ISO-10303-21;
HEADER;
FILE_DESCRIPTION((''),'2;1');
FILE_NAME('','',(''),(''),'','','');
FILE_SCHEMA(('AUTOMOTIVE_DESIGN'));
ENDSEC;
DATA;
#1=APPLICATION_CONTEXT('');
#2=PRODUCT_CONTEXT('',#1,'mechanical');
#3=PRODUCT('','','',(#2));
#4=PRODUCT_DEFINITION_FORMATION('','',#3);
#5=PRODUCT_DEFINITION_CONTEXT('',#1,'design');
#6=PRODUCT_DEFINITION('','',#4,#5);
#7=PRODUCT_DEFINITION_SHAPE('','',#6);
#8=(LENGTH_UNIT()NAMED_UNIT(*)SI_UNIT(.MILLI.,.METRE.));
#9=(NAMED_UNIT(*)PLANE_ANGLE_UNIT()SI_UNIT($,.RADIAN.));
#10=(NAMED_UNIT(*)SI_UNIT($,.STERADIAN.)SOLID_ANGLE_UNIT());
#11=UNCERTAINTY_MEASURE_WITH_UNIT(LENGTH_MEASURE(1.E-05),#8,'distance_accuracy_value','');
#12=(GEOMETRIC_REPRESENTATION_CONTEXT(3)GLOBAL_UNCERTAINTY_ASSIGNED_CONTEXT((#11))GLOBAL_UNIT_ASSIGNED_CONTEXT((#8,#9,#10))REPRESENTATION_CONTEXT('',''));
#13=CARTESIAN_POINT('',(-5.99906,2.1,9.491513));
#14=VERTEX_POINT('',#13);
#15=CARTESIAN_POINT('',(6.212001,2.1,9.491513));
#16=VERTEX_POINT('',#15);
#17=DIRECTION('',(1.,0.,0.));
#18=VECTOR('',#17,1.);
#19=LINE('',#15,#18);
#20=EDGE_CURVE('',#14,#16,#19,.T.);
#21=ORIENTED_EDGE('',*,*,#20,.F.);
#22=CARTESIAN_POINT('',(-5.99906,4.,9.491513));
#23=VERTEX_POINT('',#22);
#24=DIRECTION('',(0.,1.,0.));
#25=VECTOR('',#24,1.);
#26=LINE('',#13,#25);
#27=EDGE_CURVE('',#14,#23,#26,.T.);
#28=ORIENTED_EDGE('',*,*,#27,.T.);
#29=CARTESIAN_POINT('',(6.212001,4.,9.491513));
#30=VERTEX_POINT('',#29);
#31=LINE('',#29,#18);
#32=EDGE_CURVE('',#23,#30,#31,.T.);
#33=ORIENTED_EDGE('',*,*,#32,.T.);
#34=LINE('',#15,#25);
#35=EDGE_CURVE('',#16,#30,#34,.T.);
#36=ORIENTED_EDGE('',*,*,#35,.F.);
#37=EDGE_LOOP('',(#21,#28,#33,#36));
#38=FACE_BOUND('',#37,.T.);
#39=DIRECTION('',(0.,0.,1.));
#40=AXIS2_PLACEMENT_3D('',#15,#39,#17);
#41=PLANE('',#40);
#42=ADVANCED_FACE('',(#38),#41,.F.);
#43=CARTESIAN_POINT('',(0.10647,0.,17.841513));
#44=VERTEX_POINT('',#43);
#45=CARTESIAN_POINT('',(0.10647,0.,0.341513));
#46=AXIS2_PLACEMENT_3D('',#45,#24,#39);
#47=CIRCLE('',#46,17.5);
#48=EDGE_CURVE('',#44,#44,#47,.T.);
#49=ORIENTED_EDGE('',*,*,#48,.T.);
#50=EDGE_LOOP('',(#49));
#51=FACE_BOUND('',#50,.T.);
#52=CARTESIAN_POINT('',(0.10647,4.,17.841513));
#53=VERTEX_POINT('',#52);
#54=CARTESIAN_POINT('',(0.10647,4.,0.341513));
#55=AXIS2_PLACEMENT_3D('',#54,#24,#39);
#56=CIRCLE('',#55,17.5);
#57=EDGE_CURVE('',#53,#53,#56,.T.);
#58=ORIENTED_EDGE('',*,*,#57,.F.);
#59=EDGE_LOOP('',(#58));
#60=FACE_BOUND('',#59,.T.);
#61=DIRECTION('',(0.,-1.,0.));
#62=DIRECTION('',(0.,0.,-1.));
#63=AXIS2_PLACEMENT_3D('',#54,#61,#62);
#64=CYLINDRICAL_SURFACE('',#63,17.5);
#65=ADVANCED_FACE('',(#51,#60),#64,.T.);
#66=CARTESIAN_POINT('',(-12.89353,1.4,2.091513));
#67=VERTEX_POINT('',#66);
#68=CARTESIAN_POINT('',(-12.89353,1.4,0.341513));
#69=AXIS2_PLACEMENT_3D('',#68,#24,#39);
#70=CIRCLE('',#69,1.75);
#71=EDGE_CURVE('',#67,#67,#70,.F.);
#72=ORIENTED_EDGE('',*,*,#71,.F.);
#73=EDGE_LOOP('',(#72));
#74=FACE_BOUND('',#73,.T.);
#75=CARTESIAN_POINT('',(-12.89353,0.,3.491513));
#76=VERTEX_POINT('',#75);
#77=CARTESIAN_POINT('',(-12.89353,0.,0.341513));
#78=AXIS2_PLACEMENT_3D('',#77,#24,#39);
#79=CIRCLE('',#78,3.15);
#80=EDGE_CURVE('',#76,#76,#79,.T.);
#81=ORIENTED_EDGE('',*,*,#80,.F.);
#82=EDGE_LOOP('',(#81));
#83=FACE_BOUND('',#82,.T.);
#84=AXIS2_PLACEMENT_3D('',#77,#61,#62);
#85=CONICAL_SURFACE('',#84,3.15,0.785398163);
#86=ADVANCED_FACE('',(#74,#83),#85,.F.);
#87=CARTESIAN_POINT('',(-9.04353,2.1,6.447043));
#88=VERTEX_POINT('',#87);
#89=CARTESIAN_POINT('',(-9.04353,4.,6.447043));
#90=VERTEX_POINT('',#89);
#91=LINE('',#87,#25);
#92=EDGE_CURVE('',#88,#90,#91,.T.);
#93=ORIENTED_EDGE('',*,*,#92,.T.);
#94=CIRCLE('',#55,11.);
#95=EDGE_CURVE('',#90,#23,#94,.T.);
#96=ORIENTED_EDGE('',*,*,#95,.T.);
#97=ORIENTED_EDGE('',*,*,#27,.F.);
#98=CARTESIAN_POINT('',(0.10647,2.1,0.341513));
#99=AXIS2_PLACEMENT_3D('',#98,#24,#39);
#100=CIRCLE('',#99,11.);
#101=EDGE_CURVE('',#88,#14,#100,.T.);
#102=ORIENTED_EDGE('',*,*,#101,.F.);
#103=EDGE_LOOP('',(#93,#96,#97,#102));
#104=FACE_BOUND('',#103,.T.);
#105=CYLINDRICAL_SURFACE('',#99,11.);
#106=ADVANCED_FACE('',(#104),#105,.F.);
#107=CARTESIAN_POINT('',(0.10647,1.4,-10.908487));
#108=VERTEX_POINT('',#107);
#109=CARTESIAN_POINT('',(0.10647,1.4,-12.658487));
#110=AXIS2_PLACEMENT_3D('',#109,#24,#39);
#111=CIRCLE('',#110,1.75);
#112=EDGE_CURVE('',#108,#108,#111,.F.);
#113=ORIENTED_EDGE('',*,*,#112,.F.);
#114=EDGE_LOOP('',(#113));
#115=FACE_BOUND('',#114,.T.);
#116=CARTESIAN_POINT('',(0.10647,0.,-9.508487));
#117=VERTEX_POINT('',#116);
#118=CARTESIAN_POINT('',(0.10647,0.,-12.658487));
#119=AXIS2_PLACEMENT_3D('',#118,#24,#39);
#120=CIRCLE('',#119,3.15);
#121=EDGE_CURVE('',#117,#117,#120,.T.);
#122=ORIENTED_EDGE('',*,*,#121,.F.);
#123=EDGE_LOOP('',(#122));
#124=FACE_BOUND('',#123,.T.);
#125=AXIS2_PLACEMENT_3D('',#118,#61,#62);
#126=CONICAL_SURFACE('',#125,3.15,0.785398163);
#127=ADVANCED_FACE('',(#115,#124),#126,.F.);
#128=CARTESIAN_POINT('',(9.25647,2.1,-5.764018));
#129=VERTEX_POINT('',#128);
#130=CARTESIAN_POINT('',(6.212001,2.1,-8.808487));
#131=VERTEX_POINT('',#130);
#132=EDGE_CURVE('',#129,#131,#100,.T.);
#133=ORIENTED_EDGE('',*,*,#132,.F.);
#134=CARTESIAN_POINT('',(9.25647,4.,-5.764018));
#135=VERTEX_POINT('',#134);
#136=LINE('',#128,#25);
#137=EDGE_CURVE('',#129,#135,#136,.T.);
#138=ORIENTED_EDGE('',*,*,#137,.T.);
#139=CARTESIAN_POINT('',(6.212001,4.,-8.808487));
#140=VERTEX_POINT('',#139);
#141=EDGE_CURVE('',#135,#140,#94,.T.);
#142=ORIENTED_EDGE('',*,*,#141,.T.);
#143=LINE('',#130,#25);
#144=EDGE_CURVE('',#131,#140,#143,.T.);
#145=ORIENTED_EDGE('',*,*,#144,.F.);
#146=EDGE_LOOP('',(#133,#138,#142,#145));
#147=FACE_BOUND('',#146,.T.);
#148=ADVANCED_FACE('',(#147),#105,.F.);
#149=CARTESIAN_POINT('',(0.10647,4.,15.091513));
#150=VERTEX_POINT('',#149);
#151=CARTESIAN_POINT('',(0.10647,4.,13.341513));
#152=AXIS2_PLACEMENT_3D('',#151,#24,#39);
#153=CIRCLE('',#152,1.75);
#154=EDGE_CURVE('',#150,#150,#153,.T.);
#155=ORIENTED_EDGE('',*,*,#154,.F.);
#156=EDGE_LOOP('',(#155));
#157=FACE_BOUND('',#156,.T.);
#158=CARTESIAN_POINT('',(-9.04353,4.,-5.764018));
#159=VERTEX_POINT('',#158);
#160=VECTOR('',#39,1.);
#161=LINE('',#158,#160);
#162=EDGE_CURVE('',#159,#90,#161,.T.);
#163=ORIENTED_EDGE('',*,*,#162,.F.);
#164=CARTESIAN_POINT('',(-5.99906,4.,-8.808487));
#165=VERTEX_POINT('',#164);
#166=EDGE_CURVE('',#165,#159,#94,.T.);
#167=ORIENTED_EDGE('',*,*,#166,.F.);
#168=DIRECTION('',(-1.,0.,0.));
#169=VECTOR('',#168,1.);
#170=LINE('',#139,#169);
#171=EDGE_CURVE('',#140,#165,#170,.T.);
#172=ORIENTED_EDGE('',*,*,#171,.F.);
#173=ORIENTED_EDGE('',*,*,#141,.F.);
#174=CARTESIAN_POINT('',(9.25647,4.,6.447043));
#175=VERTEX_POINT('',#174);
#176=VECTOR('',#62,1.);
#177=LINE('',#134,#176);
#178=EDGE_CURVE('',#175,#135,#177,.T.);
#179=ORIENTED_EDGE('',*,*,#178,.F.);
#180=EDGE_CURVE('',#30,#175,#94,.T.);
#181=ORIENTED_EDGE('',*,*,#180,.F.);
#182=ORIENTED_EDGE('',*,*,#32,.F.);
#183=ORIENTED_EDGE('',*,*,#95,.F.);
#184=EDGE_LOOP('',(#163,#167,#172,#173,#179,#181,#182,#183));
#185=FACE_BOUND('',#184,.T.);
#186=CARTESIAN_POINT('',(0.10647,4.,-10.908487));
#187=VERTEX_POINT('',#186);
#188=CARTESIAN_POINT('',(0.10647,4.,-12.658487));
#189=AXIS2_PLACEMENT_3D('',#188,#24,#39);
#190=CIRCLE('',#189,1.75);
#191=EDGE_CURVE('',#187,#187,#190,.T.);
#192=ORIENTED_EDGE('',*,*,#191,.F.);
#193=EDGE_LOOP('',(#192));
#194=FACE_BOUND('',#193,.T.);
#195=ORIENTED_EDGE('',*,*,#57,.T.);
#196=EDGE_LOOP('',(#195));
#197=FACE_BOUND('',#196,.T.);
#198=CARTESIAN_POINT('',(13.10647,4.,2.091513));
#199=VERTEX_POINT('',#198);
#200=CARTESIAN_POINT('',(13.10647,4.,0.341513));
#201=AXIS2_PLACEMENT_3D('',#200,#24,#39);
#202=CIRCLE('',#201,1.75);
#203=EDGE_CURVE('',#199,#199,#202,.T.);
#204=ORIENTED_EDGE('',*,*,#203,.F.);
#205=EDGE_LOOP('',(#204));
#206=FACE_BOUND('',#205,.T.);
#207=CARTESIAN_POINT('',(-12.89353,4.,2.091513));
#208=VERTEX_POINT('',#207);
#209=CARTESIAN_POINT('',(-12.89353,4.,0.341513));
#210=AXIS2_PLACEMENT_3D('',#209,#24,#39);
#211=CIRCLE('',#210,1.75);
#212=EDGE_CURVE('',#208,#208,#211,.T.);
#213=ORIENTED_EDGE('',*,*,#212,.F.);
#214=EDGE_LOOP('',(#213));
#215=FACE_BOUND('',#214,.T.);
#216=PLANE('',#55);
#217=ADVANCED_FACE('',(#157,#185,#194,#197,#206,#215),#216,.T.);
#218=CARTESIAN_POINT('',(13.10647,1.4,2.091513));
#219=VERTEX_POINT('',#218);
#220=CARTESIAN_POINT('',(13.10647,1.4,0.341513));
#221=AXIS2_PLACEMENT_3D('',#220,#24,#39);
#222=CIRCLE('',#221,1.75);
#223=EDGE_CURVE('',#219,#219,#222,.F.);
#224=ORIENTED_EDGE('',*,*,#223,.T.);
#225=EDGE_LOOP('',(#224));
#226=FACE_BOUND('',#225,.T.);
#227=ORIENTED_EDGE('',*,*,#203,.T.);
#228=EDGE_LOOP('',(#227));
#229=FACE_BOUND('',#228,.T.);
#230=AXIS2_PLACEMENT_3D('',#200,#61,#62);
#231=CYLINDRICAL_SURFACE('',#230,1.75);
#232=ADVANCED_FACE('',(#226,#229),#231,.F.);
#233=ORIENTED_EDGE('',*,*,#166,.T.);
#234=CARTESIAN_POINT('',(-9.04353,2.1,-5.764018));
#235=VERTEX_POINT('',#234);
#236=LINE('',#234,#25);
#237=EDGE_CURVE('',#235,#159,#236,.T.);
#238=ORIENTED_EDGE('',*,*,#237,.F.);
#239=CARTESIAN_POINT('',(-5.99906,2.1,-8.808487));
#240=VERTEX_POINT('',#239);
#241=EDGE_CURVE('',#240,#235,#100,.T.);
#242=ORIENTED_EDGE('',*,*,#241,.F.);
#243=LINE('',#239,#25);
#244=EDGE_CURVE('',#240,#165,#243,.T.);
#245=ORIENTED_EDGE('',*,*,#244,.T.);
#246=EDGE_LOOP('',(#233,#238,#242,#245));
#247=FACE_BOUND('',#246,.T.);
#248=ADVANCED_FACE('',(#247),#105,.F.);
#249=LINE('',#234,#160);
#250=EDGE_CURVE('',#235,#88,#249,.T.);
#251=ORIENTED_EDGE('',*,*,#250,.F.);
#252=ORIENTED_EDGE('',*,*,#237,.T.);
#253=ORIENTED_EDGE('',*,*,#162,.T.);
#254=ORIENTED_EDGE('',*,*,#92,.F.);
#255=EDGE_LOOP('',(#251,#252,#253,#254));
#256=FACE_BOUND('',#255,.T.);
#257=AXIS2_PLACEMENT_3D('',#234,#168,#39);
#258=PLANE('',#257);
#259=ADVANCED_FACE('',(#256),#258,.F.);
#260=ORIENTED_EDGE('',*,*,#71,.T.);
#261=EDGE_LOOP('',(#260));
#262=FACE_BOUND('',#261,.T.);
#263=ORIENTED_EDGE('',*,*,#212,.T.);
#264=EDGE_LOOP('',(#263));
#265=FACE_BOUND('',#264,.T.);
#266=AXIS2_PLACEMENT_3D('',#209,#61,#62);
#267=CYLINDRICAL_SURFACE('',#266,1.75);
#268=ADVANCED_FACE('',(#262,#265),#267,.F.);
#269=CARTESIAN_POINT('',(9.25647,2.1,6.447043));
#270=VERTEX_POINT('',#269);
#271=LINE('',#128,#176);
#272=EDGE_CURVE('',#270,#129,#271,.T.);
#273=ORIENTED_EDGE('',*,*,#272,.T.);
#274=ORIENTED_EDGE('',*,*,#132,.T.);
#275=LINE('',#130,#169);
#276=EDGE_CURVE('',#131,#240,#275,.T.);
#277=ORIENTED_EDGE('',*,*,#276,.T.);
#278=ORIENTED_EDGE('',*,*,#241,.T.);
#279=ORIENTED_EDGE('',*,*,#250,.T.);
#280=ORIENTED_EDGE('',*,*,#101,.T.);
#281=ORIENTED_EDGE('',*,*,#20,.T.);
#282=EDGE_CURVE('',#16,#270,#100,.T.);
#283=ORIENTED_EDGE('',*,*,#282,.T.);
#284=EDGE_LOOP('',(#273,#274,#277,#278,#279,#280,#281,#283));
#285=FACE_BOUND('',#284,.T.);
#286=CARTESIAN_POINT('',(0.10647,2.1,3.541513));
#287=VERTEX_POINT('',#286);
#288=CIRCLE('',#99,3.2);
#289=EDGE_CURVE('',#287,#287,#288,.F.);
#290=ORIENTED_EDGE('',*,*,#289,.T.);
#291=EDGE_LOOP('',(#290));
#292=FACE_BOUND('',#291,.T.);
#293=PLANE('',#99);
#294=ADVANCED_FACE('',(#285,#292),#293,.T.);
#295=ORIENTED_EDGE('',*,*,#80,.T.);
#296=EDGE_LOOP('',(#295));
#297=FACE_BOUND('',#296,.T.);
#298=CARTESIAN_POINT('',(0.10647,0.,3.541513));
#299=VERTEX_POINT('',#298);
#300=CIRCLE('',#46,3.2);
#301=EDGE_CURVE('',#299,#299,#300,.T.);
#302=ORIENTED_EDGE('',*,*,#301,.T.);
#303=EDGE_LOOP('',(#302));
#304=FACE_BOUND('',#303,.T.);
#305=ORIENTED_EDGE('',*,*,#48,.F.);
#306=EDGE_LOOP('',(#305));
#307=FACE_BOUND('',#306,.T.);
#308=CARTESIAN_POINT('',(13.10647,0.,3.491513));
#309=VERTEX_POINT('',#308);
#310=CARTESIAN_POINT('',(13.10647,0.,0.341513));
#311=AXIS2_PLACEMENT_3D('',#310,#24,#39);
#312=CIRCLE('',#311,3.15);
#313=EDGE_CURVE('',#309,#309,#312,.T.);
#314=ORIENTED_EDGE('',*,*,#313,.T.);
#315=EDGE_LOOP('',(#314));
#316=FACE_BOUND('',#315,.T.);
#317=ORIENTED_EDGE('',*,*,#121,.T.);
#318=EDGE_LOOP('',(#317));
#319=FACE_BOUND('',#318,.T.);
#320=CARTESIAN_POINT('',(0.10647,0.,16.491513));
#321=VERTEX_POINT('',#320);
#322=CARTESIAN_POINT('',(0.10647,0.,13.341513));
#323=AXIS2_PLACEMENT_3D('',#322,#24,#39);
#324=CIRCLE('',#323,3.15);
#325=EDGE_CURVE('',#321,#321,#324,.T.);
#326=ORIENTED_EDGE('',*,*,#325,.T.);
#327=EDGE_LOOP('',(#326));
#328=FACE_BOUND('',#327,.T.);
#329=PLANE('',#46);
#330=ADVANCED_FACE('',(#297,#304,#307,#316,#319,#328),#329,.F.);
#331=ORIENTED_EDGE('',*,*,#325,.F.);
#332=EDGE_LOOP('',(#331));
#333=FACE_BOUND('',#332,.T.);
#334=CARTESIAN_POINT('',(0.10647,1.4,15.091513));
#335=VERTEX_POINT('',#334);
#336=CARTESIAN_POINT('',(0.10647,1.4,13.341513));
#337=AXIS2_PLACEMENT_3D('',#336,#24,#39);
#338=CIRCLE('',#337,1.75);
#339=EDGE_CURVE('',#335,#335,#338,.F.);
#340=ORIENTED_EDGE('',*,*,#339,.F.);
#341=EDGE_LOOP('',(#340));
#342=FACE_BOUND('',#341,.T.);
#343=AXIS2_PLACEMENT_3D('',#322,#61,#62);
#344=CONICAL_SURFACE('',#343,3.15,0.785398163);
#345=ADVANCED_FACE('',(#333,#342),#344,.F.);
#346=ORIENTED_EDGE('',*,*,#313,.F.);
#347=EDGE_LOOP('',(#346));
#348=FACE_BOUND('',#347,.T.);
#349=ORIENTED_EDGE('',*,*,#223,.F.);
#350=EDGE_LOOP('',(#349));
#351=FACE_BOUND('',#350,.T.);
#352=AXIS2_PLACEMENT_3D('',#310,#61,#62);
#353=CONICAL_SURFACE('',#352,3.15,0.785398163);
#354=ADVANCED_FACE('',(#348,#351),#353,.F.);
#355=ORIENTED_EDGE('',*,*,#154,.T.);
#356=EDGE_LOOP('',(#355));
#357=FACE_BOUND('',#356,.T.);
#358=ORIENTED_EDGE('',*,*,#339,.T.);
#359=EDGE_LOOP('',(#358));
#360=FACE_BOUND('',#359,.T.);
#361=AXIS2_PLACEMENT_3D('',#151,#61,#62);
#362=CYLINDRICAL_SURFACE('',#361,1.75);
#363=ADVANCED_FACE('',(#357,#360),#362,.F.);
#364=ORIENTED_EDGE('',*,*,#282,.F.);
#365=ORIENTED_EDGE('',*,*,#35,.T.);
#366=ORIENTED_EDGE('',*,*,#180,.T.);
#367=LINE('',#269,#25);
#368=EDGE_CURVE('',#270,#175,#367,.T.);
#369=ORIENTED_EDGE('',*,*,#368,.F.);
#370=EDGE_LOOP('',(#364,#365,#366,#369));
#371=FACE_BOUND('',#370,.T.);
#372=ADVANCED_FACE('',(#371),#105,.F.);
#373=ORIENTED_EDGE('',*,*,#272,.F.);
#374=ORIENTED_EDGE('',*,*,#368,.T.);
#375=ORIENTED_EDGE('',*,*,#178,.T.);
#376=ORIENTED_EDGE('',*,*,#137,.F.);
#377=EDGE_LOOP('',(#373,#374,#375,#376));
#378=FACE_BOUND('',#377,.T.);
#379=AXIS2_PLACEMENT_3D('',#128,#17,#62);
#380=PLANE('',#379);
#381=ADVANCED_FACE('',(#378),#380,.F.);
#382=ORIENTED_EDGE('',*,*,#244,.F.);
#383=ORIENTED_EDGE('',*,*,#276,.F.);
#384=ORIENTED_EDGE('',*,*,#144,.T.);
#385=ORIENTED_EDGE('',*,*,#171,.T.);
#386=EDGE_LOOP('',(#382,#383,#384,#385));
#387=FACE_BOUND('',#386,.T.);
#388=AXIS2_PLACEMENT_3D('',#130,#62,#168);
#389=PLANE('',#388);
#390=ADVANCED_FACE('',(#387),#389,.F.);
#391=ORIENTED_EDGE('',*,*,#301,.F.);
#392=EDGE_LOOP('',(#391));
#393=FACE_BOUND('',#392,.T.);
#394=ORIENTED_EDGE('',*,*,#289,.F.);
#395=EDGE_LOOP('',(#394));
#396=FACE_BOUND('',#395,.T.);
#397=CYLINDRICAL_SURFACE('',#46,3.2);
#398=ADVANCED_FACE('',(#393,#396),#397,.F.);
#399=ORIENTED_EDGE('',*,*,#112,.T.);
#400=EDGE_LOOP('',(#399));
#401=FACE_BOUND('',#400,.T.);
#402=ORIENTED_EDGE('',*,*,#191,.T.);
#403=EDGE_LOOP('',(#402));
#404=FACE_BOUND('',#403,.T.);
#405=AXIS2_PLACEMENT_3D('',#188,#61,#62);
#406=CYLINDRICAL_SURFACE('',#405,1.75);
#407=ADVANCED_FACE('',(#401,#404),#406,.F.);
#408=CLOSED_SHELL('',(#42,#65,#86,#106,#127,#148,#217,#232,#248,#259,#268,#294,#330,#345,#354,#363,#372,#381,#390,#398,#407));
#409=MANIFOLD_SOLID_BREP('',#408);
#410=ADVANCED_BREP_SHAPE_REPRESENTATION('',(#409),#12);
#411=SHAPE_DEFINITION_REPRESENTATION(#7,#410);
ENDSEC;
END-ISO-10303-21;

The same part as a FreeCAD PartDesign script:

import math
import FreeCAD as App
import Part
import Sketcher
Q = App.Units.Quantity


def edges_at(feature, points):
    """Names of the edges that pass closest to the given points."""
    edges = feature.Shape.Edges
    near = lambda p: min(range(len(edges)), key=lambda i: edges[i].distToShape(Part.Vertex(*p))[0])
    return sorted({f"Edge{near(p) + 1}" for p in points})

doc = App.newDocument("Part")
body = doc.addObject("PartDesign::Body", "Body")

# Sketch on XZ plane
sketch1 = doc.addObject("Sketcher::SketchObject", "Sketch")
body.addObject(sketch1)
sketch1.AttachmentSupport = (doc.XZ_Plane, [""])
sketch1.MapMode = "FlatFace"
sketch1.addGeometry(Part.Circle(App.Vector(0.10647, 0.341513, 0), App.Vector(0, 0, 1), 17.5), False)
sketch1.addGeometry(Part.Circle(App.Vector(0.10647, 13.341513, 0), App.Vector(0, 0, 1), 1.75), False)
sketch1.addGeometry(Part.Circle(App.Vector(-12.89353, 0.341513, 0), App.Vector(0, 0, 1), 1.75), False)
sketch1.addGeometry(Part.Circle(App.Vector(13.10647, 0.341513, 0), App.Vector(0, 0, 1), 1.75), False)
sketch1.addGeometry(Part.Circle(App.Vector(0.10647, -12.658487, 0), App.Vector(0, 0, 1), 1.75), False)
sketch1.addConstraint(Sketcher.Constraint("Equal", 1, 2))
sketch1.addConstraint(Sketcher.Constraint("Equal", 2, 3))
sketch1.addConstraint(Sketcher.Constraint("Equal", 3, 4))
sketch1.addConstraint(Sketcher.Constraint("Horizontal", 0, 3, 2, 3))
sketch1.addConstraint(Sketcher.Constraint("Horizontal", 2, 3, 3, 3))
sketch1.addConstraint(Sketcher.Constraint("Vertical", 0, 3, 1, 3))
sketch1.addConstraint(Sketcher.Constraint("Vertical", 1, 3, 4, 3))
sketch1.addConstraint(Sketcher.Constraint("Diameter", 0, Q("35 mm")))
sketch1.addConstraint(Sketcher.Constraint("Diameter", 1, Q("3.5 mm")))
sketch1.addConstraint(Sketcher.Constraint("DistanceY", 0, 3, 1, 3, Q("13 mm")))
sketch1.addConstraint(Sketcher.Constraint("DistanceX", 2, 3, 0, 3, Q("13 mm")))
sketch1.addConstraint(Sketcher.Constraint("DistanceX", 0, 3, 3, 3, Q("13 mm")))
sketch1.addConstraint(Sketcher.Constraint("DistanceY", 4, 3, 0, 3, Q("13 mm")))
sketch1.addConstraint(Sketcher.Constraint("DistanceX", -1, 1, 0, 3, Q("0.10647 mm")))
sketch1.addConstraint(Sketcher.Constraint("DistanceY", -1, 1, 0, 3, Q("0.341513 mm")))
pad1 = doc.addObject("PartDesign::Pad", "Pad")
body.addObject(pad1)
pad1.Profile = sketch1
pad1.Length = 4
pad1.Reversed = True

# Sketch on XZ plane
sketch2 = doc.addObject("Sketcher::SketchObject", "Sketch001")
body.addObject(sketch2)
sketch2.AttachmentSupport = (doc.XZ_Plane, [""])
sketch2.MapMode = "FlatFace"
sketch2.AttachmentOffset = App.Placement(App.Vector(0, 0, -4), App.Rotation())
sketch2.addGeometry(Part.Circle(App.Vector(0.10647, 0.341513, 0), App.Vector(0, 0, 1), 3.2), False)
sketch2.addConstraint(Sketcher.Constraint("Diameter", 0, Q("6.4 mm")))
sketch2.addConstraint(Sketcher.Constraint("DistanceX", -1, 1, 0, 3, Q("0.10647 mm")))
sketch2.addConstraint(Sketcher.Constraint("DistanceY", -1, 1, 0, 3, Q("0.341513 mm")))
pocket1 = doc.addObject("PartDesign::Pocket", "Pocket")
body.addObject(pocket1)
pocket1.Profile = sketch2
pocket1.Type = "ThroughAll"
pocket1.Reversed = True

# Sketch on XZ plane
sketch3 = doc.addObject("Sketcher::SketchObject", "Sketch002")
body.addObject(sketch3)
sketch3.AttachmentSupport = (doc.XZ_Plane, [""])
sketch3.MapMode = "FlatFace"
sketch3.AttachmentOffset = App.Placement(App.Vector(0, 0, -4), App.Rotation())
sketch3.addGeometry(Part.LineSegment(App.Vector(6.212001, -8.808487, 0), App.Vector(-5.99906, -8.808487, 0)), False)
sketch3.addGeometry(Part.ArcOfCircle(Part.Circle(App.Vector(0.10647, 0.341513, 0), App.Vector(0, 0, 1), 11), math.radians(-146.285965), math.radians(-123.714035)), False)
sketch3.addGeometry(Part.LineSegment(App.Vector(-9.04353, -5.764018, 0), App.Vector(-9.04353, 6.447043, 0)), False)
sketch3.addGeometry(Part.ArcOfCircle(Part.Circle(App.Vector(0.10647, 0.341513, 0), App.Vector(0, 0, 1), 11), math.radians(123.714035), math.radians(146.285965)), False)
sketch3.addGeometry(Part.LineSegment(App.Vector(-5.99906, 9.491513, 0), App.Vector(6.212001, 9.491513, 0)), False)
sketch3.addGeometry(Part.ArcOfCircle(Part.Circle(App.Vector(0.10647, 0.341513, 0), App.Vector(0, 0, 1), 11), math.radians(33.714035), math.radians(56.285965)), False)
sketch3.addGeometry(Part.LineSegment(App.Vector(9.25647, 6.447043, 0), App.Vector(9.25647, -5.764018, 0)), False)
sketch3.addGeometry(Part.ArcOfCircle(Part.Circle(App.Vector(0.10647, 0.341513, 0), App.Vector(0, 0, 1), 11), math.radians(-56.285965), math.radians(-33.714035)), False)
sketch3.addConstraint(Sketcher.Constraint("Coincident", 0, 2, 1, 2))
sketch3.addConstraint(Sketcher.Constraint("Coincident", 1, 1, 2, 1))
sketch3.addConstraint(Sketcher.Constraint("Coincident", 2, 2, 3, 2))
sketch3.addConstraint(Sketcher.Constraint("Coincident", 3, 1, 4, 1))
sketch3.addConstraint(Sketcher.Constraint("Coincident", 4, 2, 5, 2))
sketch3.addConstraint(Sketcher.Constraint("Coincident", 5, 1, 6, 1))
sketch3.addConstraint(Sketcher.Constraint("Coincident", 6, 2, 7, 2))
sketch3.addConstraint(Sketcher.Constraint("Coincident", 7, 1, 0, 1))
sketch3.addConstraint(Sketcher.Constraint("Horizontal", 0))
sketch3.addConstraint(Sketcher.Constraint("Vertical", 2))
sketch3.addConstraint(Sketcher.Constraint("Horizontal", 4))
sketch3.addConstraint(Sketcher.Constraint("Vertical", 6))
sketch3.addConstraint(Sketcher.Constraint("Coincident", 3, 3, 1, 3))
sketch3.addConstraint(Sketcher.Constraint("Coincident", 5, 3, 1, 3))
sketch3.addConstraint(Sketcher.Constraint("Coincident", 7, 3, 1, 3))
sketch3.addConstraint(Sketcher.Constraint("Equal", 1, 3))
sketch3.addConstraint(Sketcher.Constraint("Equal", 3, 5))
sketch3.addConstraint(Sketcher.Constraint("Equal", 5, 7))
sketch3.addConstraint(Sketcher.Constraint("Horizontal", 2, 2, 5, 1))
sketch3.addConstraint(Sketcher.Constraint("Vertical", 0, 2, 3, 1))
sketch3.addConstraint(Sketcher.Constraint("Equal", 4, 2))
sketch3.addConstraint(Sketcher.Constraint("Radius", 1, Q("11 mm")))
sketch3.addConstraint(Sketcher.Constraint("DistanceY", 0, 2, 5, 3, Q("9.15 mm")))
sketch3.addConstraint(Sketcher.Constraint("DistanceX", -1, 1, 4, 2, Q("6.212001 mm")))
sketch3.addConstraint(Sketcher.Constraint("DistanceY", -1, 1, 1, 3, Q("0.341513 mm")))
pocket2 = doc.addObject("PartDesign::Pocket", "Pocket001")
body.addObject(pocket2)
pocket2.Profile = sketch3
pocket2.Length = 1.9
pocket2.Reversed = True
doc.recompute()

chamfer = doc.addObject("PartDesign::Chamfer", "Chamfer")
body.addObject(chamfer)
chamfer.Base = (pocket2, edges_at(pocket2, [
    (-14.644, 0, 0.342),
    (-1.644, 0, -12.658),
    (11.356, 0, 0.342),
    (-1.644, 0, 13.342),
]))
chamfer.Size = 1.4

doc.recompute()
